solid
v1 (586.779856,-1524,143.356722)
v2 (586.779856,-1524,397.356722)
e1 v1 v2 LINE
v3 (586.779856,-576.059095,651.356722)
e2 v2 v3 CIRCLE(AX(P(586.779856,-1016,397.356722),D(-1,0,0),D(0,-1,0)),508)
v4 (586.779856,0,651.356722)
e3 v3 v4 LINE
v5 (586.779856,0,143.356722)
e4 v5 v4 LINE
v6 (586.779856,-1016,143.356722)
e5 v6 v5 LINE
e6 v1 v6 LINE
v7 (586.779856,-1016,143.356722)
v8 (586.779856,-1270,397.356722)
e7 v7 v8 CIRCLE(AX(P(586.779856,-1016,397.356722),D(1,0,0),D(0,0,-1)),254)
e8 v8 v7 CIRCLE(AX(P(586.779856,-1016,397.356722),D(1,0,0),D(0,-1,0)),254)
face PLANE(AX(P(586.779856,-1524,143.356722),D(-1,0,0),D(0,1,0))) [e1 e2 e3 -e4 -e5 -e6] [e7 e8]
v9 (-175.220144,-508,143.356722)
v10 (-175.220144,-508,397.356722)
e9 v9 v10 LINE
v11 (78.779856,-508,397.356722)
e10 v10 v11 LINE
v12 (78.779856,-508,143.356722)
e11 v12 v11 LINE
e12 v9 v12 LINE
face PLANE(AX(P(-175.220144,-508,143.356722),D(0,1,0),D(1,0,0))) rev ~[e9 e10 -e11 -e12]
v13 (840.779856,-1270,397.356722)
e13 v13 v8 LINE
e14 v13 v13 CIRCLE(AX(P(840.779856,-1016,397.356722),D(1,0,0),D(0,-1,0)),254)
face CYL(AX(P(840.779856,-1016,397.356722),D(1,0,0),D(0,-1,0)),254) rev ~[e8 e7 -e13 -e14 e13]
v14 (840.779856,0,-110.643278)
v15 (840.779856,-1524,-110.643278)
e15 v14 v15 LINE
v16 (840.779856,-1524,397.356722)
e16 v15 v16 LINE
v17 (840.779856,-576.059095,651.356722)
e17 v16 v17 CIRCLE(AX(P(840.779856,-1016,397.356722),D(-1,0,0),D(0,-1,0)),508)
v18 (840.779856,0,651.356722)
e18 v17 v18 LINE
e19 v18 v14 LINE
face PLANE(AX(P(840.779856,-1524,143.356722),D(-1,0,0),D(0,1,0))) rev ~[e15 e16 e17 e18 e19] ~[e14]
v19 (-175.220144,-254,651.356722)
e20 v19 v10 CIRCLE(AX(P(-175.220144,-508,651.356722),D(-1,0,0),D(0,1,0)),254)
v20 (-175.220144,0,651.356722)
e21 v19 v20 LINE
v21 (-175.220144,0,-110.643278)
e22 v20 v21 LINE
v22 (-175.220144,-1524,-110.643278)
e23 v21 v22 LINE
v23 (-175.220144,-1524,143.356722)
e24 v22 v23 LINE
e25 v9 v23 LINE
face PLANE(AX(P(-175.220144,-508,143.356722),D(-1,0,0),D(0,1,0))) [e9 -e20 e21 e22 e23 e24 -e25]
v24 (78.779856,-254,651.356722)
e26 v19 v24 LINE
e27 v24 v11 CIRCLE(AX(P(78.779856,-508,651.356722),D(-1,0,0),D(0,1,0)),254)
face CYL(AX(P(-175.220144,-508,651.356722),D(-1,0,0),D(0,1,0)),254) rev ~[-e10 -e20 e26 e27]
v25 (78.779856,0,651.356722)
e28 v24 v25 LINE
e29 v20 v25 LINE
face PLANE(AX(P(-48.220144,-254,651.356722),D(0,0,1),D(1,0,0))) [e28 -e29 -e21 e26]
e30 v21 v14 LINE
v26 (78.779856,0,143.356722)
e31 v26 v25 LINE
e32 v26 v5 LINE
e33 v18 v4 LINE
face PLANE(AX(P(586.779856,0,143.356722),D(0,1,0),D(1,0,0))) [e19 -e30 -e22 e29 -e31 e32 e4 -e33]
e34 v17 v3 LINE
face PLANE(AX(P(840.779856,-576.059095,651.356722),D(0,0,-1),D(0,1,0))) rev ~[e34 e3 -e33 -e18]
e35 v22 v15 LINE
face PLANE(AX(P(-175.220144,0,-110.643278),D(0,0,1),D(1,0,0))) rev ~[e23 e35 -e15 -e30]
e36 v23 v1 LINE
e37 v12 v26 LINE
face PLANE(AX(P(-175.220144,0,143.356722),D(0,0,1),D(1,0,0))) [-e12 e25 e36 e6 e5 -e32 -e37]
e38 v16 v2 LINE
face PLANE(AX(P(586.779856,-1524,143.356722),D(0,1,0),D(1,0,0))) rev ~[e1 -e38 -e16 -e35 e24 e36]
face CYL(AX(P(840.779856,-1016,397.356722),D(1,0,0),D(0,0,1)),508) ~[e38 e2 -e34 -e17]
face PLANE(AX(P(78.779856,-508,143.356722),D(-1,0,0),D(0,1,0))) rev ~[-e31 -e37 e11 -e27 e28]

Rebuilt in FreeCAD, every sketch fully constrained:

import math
import FreeCAD as App
import Part
import Sketcher

V = App.Vector
Q = App.Units.Quantity


def add_polygon(sketch, points):
    """Adds a closed chain of lines whose ends are joined by coincident constraints."""
    first, n = sketch.GeometryCount, len(points)
    for a, b in zip(points, points[1:] + points[:1]):
        sketch.addGeometry(Part.LineSegment(App.Vector(*a, 0), App.Vector(*b, 0)), False)
    for i in range(n):
        sketch.addConstraint(Sketcher.Constraint("Coincident", first + i, 2, first + (i + 1) % n, 1))

doc = App.newDocument("Part")
body = doc.addObject("PartDesign::Body", "Body")

# Sketch on XZ plane
sketch1 = doc.addObject("Sketcher::SketchObject", "Sketch")
body.addObject(sketch1)
sketch1.AttachmentSupport = (doc.XZ_Plane, [""])
sketch1.MapMode = "FlatFace"
add_polygon(sketch1, [(-175, 143), (-175, -111), (841, -111), (841, 143)])  # lines 0-3
sketch1.addConstraint(Sketcher.Constraint("Vertical", 0))
sketch1.addConstraint(Sketcher.Constraint("Horizontal", 1))
sketch1.addConstraint(Sketcher.Constraint("Vertical", 2))
sketch1.addConstraint(Sketcher.Constraint("Horizontal", 3))
sketch1.addConstraint(Sketcher.Constraint("DistanceX", 1, 1, 1, 2, Q("40 in")))
sketch1.addConstraint(Sketcher.Constraint("DistanceY", 0, 2, 0, 1, Q("10 in")))
sketch1.addConstraint(Sketcher.Constraint("DistanceX", 0, 2, -1, 1, Q("175.220144 mm")))
sketch1.addConstraint(Sketcher.Constraint("DistanceY", 0, 2, -1, 1, Q("110.643278 mm")))
pad1 = doc.addObject("PartDesign::Pad", "Pad")
body.addObject(pad1)
pad1.Profile = sketch1
pad1.Length = Q("60 in")

# Sketch on XY plane
sketch2 = doc.addObject("Sketcher::SketchObject", "Sketch001")
body.addObject(sketch2)
sketch2.AttachmentSupport = (doc.XY_Plane, [""])
sketch2.MapMode = "FlatFace"
sketch2.AttachmentOffset = App.Placement(V(0, 0, 143.356722), App.Rotation())
add_polygon(sketch2, [(-175, 0), (-175, -508), (79, -508), (79, 0)])  # lines 0-3
sketch2.addConstraint(Sketcher.Constraint("Vertical", 0))
sketch2.addConstraint(Sketcher.Constraint("Horizontal", 1))
sketch2.addConstraint(Sketcher.Constraint("Vertical", 2))
sketch2.addConstraint(Sketcher.Constraint("Horizontal", 3))
sketch2.addConstraint(Sketcher.Constraint("PointOnObject", 2, 2, -1))
sketch2.addConstraint(Sketcher.Constraint("DistanceX", 1, 1, 1, 2, Q("10 in")))
sketch2.addConstraint(Sketcher.Constraint("DistanceY", 0, 2, 0, 1, Q("20 in")))
sketch2.addConstraint(Sketcher.Constraint("DistanceX", 0, 2, -1, 1, Q("175.220144 mm")))
pad2 = doc.addObject("PartDesign::Pad", "Pad001")
body.addObject(pad2)
pad2.Profile = sketch2
pad2.Length = Q("20 in")

# Sketch on XY plane
sketch3 = doc.addObject("Sketcher::SketchObject", "Sketch002")
body.addObject(sketch3)
sketch3.AttachmentSupport = (doc.XY_Plane, [""])
sketch3.MapMode = "FlatFace"
sketch3.AttachmentOffset = App.Placement(V(0, 0, 143.356722), App.Rotation())
add_polygon(sketch3, [(587, 0), (587, -1524), (841, -1524), (841, 0)])  # lines 0-3
sketch3.addConstraint(Sketcher.Constraint("Vertical", 0))
sketch3.addConstraint(Sketcher.Constraint("Horizontal", 1))
sketch3.addConstraint(Sketcher.Constraint("Vertical", 2))
sketch3.addConstraint(Sketcher.Constraint("Horizontal", 3))
sketch3.addConstraint(Sketcher.Constraint("PointOnObject", 2, 2, -1))
sketch3.addConstraint(Sketcher.Constraint("DistanceX", 1, 1, 1, 2, Q("10 in")))
sketch3.addConstraint(Sketcher.Constraint("DistanceY", 0, 2, 0, 1, Q("60 in")))
sketch3.addConstraint(Sketcher.Constraint("DistanceX", -1, 1, 0, 2, Q("586.779856 mm")))
pad3 = doc.addObject("PartDesign::Pad", "Pad002")
body.addObject(pad3)
pad3.Profile = sketch3
pad3.Length = Q("30 in")

# Sketch on YZ plane
sketch4 = doc.addObject("Sketcher::SketchObject", "Sketch003")
body.addObject(sketch4)
sketch4.AttachmentSupport = (doc.YZ_Plane, [""])
sketch4.MapMode = "FlatFace"
sketch4.AttachmentOffset = App.Placement(V(0, 0, -175.220144), App.Rotation())
sketch4.addGeometry(Part.LineSegment(V(-508, 651, 0), V(-254, 651, 0)), False)
sketch4.addGeometry(Part.ArcOfCircle(Part.Circle(V(-508, 651, 0), V(0, 0, 1), 254), math.radians(-90), math.radians(0)), False)
sketch4.addGeometry(Part.LineSegment(V(-508, 397, 0), V(-508, 651, 0)), False)
sketch4.addConstraint(Sketcher.Constraint("Coincident", 0, 2, 1, 2))
sketch4.addConstraint(Sketcher.Constraint("Coincident", 1, 1, 2, 1))
sketch4.addConstraint(Sketcher.Constraint("Coincident", 2, 2, 0, 1))
sketch4.addConstraint(Sketcher.Constraint("Horizontal", 0))
sketch4.addConstraint(Sketcher.Constraint("Vertical", 2))
sketch4.addConstraint(Sketcher.Constraint("Coincident", 2, 2, 1, 3))
sketch4.addConstraint(Sketcher.Constraint("Radius", 1, Q("10 in")))
sketch4.addConstraint(Sketcher.Constraint("DistanceX", 1, 3, -1, 1, Q("20 in")))
sketch4.addConstraint(Sketcher.Constraint("DistanceY", -1, 1, 1, 3, Q("651.356722 mm")))
pocket1 = doc.addObject("PartDesign::Pocket", "Pocket")
body.addObject(pocket1)
pocket1.Profile = sketch4
pocket1.Length = Q("10 in")
pocket1.Reversed = True

# Sketch on YZ plane
sketch5 = doc.addObject("Sketcher::SketchObject", "Sketch004")
body.addObject(sketch5)
sketch5.AttachmentSupport = (doc.YZ_Plane, [""])
sketch5.MapMode = "FlatFace"
sketch5.AttachmentOffset = App.Placement(V(0, 0, 840.779856), App.Rotation())
sketch5.addGeometry(Part.Circle(V(-1016, 397, 0), V(0, 0, 1), 254), False)
sketch5.addConstraint(Sketcher.Constraint("Diameter", 0, Q("20 in")))
sketch5.addConstraint(Sketcher.Constraint("DistanceX", 0, 3, -1, 1, Q("40 in")))
sketch5.addConstraint(Sketcher.Constraint("DistanceY", -1, 1, 0, 3, Q("397.356722 mm")))
pocket2 = doc.addObject("PartDesign::Pocket", "Pocket001")
body.addObject(pocket2)
pocket2.Profile = sketch5
pocket2.Length = Q("10 in")

# Sketch on YZ plane
sketch6 = doc.addObject("Sketcher::SketchObject", "Sketch005")
body.addObject(sketch6)
sketch6.AttachmentSupport = (doc.YZ_Plane, [""])
sketch6.MapMode = "FlatFace"
sketch6.AttachmentOffset = App.Placement(V(0, 0, 840.779856), App.Rotation())
sketch6.addGeometry(Part.Circle(V(-1016, 397, 0), V(0, 0, 1), 254), False)
sketch6.addGeometry(Part.LineSegment(V(-1524, 905, 0), V(-1524, 397, 0)), False)
sketch6.addGeometry(Part.ArcOfCircle(Part.Circle(V(-1016, 397, 0), V(0, 0, 1), 508), math.radians(90), math.radians(180)), False)
sketch6.addGeometry(Part.LineSegment(V(-1016, 905, 0), V(-1524, 905, 0)), False)
sketch6.addGeometry(Part.ArcOfCircle(Part.Circle(V(-1016, 397, 0), V(0, 0, 1), 508), math.radians(30), math.radians(90)), False)
sketch6.addGeometry(Part.LineSegment(V(-576, 651, 0), V(0, 651, 0)), False)
sketch6.addGeometry(Part.LineSegment(V(0, 651, 0), V(0, 905, 0)), False)
sketch6.addGeometry(Part.LineSegment(V(0, 905, 0), V(-1016, 905, 0)), False)
sketch6.addConstraint(Sketcher.Constraint("Tangent", 1, 2, 2, 2))
sketch6.addConstraint(Sketcher.Constraint("Tangent", 2, 1, 3, 1))
sketch6.addConstraint(Sketcher.Constraint("Coincident", 3, 2, 1, 1))
sketch6.addConstraint(Sketcher.Constraint("Coincident", 4, 1, 5, 1))
sketch6.addConstraint(Sketcher.Constraint("Coincident", 5, 2, 6, 1))
sketch6.addConstraint(Sketcher.Constraint("Coincident", 6, 2, 7, 1))
sketch6.addConstraint(Sketcher.Constraint("Tangent", 7, 2, 4, 2))
sketch6.addConstraint(Sketcher.Constraint("Vertical", 1))
sketch6.addConstraint(Sketcher.Constraint("Horizontal", 3))
sketch6.addConstraint(Sketcher.Constraint("Horizontal", 5))
sketch6.addConstraint(Sketcher.Constraint("Vertical", 6))
sketch6.addConstraint(Sketcher.Constraint("Horizontal", 7))
sketch6.addConstraint(Sketcher.Constraint("Coincident", 2, 3, 0, 3))
sketch6.addConstraint(Sketcher.Constraint("Coincident", 4, 3, 0, 3))
sketch6.addConstraint(Sketcher.Constraint("Equal", 2, 4))
sketch6.addConstraint(Sketcher.Constraint("PointOnObject", 5, 2, -2))
sketch6.addConstraint(Sketcher.Constraint("Diameter", 0, Q("20 in")))
sketch6.addConstraint(Sketcher.Constraint("Radius", 2, Q("20 in")))
sketch6.addConstraint(Sketcher.Constraint("DistanceX", 7, 2, 7, 1, Q("40 in")))
sketch6.addConstraint(Sketcher.Constraint("DistanceY", 6, 1, 6, 2, Q("10 in")))
sketch6.addConstraint(Sketcher.Constraint("DistanceY", -1, 1, 0, 3, Q("397.356722 mm")))
pocket3 = doc.addObject("PartDesign::Pocket", "Pocket002")
body.addObject(pocket3)
pocket3.Profile = sketch6
pocket3.Length = Q("10 in")

doc.recompute()
